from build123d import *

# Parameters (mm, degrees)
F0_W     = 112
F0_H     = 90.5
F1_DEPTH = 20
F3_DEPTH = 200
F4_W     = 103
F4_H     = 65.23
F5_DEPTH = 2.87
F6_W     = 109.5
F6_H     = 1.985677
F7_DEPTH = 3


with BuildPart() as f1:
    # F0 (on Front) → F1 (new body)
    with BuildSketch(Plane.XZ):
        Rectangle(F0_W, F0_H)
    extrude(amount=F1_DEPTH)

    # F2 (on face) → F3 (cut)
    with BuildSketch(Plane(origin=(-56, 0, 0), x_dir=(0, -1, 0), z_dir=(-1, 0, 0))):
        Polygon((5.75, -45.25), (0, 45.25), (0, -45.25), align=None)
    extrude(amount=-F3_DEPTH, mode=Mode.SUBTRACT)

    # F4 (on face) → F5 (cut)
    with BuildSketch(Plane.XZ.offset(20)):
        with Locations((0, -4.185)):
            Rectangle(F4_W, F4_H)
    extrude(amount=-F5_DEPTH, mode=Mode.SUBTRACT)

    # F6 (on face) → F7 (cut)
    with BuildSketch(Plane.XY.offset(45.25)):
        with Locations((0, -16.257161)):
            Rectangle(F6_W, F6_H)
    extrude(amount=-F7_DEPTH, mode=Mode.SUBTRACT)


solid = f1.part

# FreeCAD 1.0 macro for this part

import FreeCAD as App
import Part
import Sketcher
from FreeCAD import Vector
Q = App.Units.Quantity

doc = App.newDocument("Part")
params = doc.addObject("Spreadsheet::Sheet", "Params")
for row, (alias, value) in enumerate([
    ("sketch1_width", "112 mm"),
    ("sketch1_height", "90.5 mm"),
    ("pad1_length", "20 mm"),
    ("sketch2_height", "90.5 mm"),
    ("sketch2_width", "5.75 mm"),
    ("pocket1_length", "200 mm"),
    ("sketch3_width", "103 mm"),
    ("sketch3_height", "65.23 mm"),
    ("pocket2_length", "2.87 mm"),
    ("sketch4_width", "109.5 mm"),
    ("pocket3_length", "3 mm"),
], start=1):
    params.set(f"A{row}", alias)
    params.set(f"B{row}", "=" + value)
    params.setAlias(f"B{row}", alias)

body = doc.addObject("PartDesign::Body", "Body")

sketch1 = body.newObject("Sketcher::SketchObject", "Sketch")
sketch1.AttachmentSupport = (doc.getObject("XZ_Plane"), [""])
sketch1.MapMode = "FlatFace"
sketch1.addGeometry([
    Part.LineSegment(Vector(-56, 45.25, 0), Vector(-56, -45.25, 0)),
    Part.LineSegment(Vector(-56, -45.25, 0), Vector(56, -45.25, 0)),
    Part.LineSegment(Vector(56, -45.25, 0), Vector(56, 45.25, 0)),
    Part.LineSegment(Vector(56, 45.25, 0), Vector(-56, 45.25, 0)),
], False)
sketch1.addConstraint([
    Sketcher.Constraint("Coincident", 0, 2, 1, 1),
    Sketcher.Constraint("Coincident", 1, 2, 2, 1),
    Sketcher.Constraint("Coincident", 2, 2, 3, 1),
    Sketcher.Constraint("Coincident", 3, 2, 0, 1),
    Sketcher.Constraint("Vertical", 0),
    Sketcher.Constraint("Horizontal", 1),
    Sketcher.Constraint("Vertical", 2),
    Sketcher.Constraint("Horizontal", 3),
    Sketcher.Constraint("Symmetric", 0, 2, 2, 2, -1, 1),
    Sketcher.Constraint("DistanceX", 1, 1, 1, 2, Q("112 mm")),
    Sketcher.Constraint("DistanceY", 0, 2, 0, 1, Q("90.5 mm")),
])
sketch1.setExpression("Constraints[9]", "Params.sketch1_width")
sketch1.setExpression("Constraints[10]", "Params.sketch1_height")
pad1 = body.newObject("PartDesign::Pad", "Pad")
pad1.Profile = sketch1
pad1.setExpression("Length", "Params.pad1_length")

sketch2 = body.newObject("Sketcher::SketchObject", "Sketch001")
sketch2.AttachmentSupport = (doc.getObject("YZ_Plane"), [""])
sketch2.MapMode = "FlatFace"
sketch2.AttachmentOffset = App.Placement(Vector(0, 0, -56), App.Rotation())
sketch2.addGeometry([
    Part.LineSegment(Vector(-5.75, -45.25, 0), Vector(0, 45.25, 0)),
    Part.LineSegment(Vector(0, 45.25, 0), Vector(0, -45.25, 0)),
    Part.LineSegment(Vector(0, -45.25, 0), Vector(-5.75, -45.25, 0)),
], False)
sketch2.addConstraint([
    Sketcher.Constraint("Coincident", 0, 2, 1, 1),
    Sketcher.Constraint("Coincident", 1, 2, 2, 1),
    Sketcher.Constraint("Coincident", 2, 2, 0, 1),
    Sketcher.Constraint("Vertical", 1),
    Sketcher.Constraint("Horizontal", 2),
    Sketcher.Constraint("Symmetric", 0, 2, 1, 2, -1, 1),
    Sketcher.Constraint("DistanceY", 1, 2, 1, 1, Q("90.5 mm")),
    Sketcher.Constraint("DistanceX", 2, 2, 2, 1, Q("5.75 mm")),
])
sketch2.setExpression("Constraints[6]", "Params.sketch2_height")
sketch2.setExpression("Constraints[7]", "Params.sketch2_width")
pocket1 = body.newObject("PartDesign::Pocket", "Pocket")
pocket1.Profile = sketch2
pocket1.setExpression("Length", "Params.pocket1_length")
pocket1.Reversed = True

sketch3 = body.newObject("Sketcher::SketchObject", "Sketch002")
sketch3.AttachmentSupport = (doc.getObject("XZ_Plane"), [""])
sketch3.MapMode = "FlatFace"
sketch3.AttachmentOffset = App.Placement(Vector(0, 0, 20), App.Rotation())
sketch3.addGeometry([
    Part.LineSegment(Vector(-51.5, 28.43, 0), Vector(-51.5, -36.8, 0)),
    Part.LineSegment(Vector(-51.5, -36.8, 0), Vector(51.5, -36.8, 0)),
    Part.LineSegment(Vector(51.5, -36.8, 0), Vector(51.5, 28.43, 0)),
    Part.LineSegment(Vector(51.5, 28.43, 0), Vector(-51.5, 28.43, 0)),
], False)
sketch3.addConstraint([
    Sketcher.Constraint("Coincident", 0, 2, 1, 1),
    Sketcher.Constraint("Coincident", 1, 2, 2, 1),
    Sketcher.Constraint("Coincident", 2, 2, 3, 1),
    Sketcher.Constraint("Coincident", 3, 2, 0, 1),
    Sketcher.Constraint("Vertical", 0),
    Sketcher.Constraint("Horizontal", 1),
    Sketcher.Constraint("Vertical", 2),
    Sketcher.Constraint("Horizontal", 3),
    Sketcher.Constraint("DistanceX", 1, 1, 1, 2, Q("103 mm")),
    Sketcher.Constraint("DistanceY", 0, 2, 0, 1, Q("65.23 mm")),
    Sketcher.Constraint("DistanceX", 0, 2, -1, 1, Q("51.5 mm")),
    Sketcher.Constraint("DistanceY", 0, 2, -1, 1, Q("36.8 mm")),
])
sketch3.setExpression("Constraints[8]", "Params.sketch3_width")
sketch3.setExpression("Constraints[9]", "Params.sketch3_height")
pocket2 = body.newObject("PartDesign::Pocket", "Pocket001")
pocket2.Profile = sketch3
pocket2.setExpression("Length", "Params.pocket2_length")

sketch4 = body.newObject("Sketcher::SketchObject", "Sketch003")
sketch4.AttachmentSupport = (doc.getObject("XY_Plane"), [""])
sketch4.MapMode = "FlatFace"
sketch4.AttachmentOffset = App.Placement(Vector(0, 0, 45.25), App.Rotation())
sketch4.addGeometry([
    Part.LineSegment(Vector(-54.75, -15.264323, 0), Vector(-54.75, -17.25, 0)),
    Part.LineSegment(Vector(-54.75, -17.25, 0), Vector(54.75, -17.25, 0)),
    Part.LineSegment(Vector(54.75, -17.25, 0), Vector(54.75, -15.264323, 0)),
    Part.LineSegment(Vector(54.75, -15.264323, 0), Vector(-54.75, -15.264323, 0)),
], False)
sketch4.addConstraint([
    Sketcher.Constraint("Coincident", 0, 2, 1, 1),
    Sketcher.Constraint("Coincident", 1, 2, 2, 1),
    Sketcher.Constraint("Coincident", 2, 2, 3, 1),
    Sketcher.Constraint("Coincident", 3, 2, 0, 1),
    Sketcher.Constraint("Vertical", 0),
    Sketcher.Constraint("Horizontal", 1),
    Sketcher.Constraint("Vertical", 2),
    Sketcher.Constraint("Horizontal", 3),
    Sketcher.Constraint("DistanceX", 1, 1, 1, 2, Q("109.5 mm")),
    Sketcher.Constraint("DistanceX", 0, 2, -1, 1, Q("54.75 mm")),
    Sketcher.Constraint("DistanceY", 0, 2, -1, 1, Q("17.25 mm")),
    Sketcher.Constraint("DistanceY", 0, 2, 0, 1, Q("1.985677 mm")),
])
sketch4.setExpression("Constraints[8]", "Params.sketch4_width")
pocket3 = body.newObject("PartDesign::Pocket", "Pocket002")
pocket3.Profile = sketch4
pocket3.setExpression("Length", "Params.pocket3_length")

doc.recompute()
